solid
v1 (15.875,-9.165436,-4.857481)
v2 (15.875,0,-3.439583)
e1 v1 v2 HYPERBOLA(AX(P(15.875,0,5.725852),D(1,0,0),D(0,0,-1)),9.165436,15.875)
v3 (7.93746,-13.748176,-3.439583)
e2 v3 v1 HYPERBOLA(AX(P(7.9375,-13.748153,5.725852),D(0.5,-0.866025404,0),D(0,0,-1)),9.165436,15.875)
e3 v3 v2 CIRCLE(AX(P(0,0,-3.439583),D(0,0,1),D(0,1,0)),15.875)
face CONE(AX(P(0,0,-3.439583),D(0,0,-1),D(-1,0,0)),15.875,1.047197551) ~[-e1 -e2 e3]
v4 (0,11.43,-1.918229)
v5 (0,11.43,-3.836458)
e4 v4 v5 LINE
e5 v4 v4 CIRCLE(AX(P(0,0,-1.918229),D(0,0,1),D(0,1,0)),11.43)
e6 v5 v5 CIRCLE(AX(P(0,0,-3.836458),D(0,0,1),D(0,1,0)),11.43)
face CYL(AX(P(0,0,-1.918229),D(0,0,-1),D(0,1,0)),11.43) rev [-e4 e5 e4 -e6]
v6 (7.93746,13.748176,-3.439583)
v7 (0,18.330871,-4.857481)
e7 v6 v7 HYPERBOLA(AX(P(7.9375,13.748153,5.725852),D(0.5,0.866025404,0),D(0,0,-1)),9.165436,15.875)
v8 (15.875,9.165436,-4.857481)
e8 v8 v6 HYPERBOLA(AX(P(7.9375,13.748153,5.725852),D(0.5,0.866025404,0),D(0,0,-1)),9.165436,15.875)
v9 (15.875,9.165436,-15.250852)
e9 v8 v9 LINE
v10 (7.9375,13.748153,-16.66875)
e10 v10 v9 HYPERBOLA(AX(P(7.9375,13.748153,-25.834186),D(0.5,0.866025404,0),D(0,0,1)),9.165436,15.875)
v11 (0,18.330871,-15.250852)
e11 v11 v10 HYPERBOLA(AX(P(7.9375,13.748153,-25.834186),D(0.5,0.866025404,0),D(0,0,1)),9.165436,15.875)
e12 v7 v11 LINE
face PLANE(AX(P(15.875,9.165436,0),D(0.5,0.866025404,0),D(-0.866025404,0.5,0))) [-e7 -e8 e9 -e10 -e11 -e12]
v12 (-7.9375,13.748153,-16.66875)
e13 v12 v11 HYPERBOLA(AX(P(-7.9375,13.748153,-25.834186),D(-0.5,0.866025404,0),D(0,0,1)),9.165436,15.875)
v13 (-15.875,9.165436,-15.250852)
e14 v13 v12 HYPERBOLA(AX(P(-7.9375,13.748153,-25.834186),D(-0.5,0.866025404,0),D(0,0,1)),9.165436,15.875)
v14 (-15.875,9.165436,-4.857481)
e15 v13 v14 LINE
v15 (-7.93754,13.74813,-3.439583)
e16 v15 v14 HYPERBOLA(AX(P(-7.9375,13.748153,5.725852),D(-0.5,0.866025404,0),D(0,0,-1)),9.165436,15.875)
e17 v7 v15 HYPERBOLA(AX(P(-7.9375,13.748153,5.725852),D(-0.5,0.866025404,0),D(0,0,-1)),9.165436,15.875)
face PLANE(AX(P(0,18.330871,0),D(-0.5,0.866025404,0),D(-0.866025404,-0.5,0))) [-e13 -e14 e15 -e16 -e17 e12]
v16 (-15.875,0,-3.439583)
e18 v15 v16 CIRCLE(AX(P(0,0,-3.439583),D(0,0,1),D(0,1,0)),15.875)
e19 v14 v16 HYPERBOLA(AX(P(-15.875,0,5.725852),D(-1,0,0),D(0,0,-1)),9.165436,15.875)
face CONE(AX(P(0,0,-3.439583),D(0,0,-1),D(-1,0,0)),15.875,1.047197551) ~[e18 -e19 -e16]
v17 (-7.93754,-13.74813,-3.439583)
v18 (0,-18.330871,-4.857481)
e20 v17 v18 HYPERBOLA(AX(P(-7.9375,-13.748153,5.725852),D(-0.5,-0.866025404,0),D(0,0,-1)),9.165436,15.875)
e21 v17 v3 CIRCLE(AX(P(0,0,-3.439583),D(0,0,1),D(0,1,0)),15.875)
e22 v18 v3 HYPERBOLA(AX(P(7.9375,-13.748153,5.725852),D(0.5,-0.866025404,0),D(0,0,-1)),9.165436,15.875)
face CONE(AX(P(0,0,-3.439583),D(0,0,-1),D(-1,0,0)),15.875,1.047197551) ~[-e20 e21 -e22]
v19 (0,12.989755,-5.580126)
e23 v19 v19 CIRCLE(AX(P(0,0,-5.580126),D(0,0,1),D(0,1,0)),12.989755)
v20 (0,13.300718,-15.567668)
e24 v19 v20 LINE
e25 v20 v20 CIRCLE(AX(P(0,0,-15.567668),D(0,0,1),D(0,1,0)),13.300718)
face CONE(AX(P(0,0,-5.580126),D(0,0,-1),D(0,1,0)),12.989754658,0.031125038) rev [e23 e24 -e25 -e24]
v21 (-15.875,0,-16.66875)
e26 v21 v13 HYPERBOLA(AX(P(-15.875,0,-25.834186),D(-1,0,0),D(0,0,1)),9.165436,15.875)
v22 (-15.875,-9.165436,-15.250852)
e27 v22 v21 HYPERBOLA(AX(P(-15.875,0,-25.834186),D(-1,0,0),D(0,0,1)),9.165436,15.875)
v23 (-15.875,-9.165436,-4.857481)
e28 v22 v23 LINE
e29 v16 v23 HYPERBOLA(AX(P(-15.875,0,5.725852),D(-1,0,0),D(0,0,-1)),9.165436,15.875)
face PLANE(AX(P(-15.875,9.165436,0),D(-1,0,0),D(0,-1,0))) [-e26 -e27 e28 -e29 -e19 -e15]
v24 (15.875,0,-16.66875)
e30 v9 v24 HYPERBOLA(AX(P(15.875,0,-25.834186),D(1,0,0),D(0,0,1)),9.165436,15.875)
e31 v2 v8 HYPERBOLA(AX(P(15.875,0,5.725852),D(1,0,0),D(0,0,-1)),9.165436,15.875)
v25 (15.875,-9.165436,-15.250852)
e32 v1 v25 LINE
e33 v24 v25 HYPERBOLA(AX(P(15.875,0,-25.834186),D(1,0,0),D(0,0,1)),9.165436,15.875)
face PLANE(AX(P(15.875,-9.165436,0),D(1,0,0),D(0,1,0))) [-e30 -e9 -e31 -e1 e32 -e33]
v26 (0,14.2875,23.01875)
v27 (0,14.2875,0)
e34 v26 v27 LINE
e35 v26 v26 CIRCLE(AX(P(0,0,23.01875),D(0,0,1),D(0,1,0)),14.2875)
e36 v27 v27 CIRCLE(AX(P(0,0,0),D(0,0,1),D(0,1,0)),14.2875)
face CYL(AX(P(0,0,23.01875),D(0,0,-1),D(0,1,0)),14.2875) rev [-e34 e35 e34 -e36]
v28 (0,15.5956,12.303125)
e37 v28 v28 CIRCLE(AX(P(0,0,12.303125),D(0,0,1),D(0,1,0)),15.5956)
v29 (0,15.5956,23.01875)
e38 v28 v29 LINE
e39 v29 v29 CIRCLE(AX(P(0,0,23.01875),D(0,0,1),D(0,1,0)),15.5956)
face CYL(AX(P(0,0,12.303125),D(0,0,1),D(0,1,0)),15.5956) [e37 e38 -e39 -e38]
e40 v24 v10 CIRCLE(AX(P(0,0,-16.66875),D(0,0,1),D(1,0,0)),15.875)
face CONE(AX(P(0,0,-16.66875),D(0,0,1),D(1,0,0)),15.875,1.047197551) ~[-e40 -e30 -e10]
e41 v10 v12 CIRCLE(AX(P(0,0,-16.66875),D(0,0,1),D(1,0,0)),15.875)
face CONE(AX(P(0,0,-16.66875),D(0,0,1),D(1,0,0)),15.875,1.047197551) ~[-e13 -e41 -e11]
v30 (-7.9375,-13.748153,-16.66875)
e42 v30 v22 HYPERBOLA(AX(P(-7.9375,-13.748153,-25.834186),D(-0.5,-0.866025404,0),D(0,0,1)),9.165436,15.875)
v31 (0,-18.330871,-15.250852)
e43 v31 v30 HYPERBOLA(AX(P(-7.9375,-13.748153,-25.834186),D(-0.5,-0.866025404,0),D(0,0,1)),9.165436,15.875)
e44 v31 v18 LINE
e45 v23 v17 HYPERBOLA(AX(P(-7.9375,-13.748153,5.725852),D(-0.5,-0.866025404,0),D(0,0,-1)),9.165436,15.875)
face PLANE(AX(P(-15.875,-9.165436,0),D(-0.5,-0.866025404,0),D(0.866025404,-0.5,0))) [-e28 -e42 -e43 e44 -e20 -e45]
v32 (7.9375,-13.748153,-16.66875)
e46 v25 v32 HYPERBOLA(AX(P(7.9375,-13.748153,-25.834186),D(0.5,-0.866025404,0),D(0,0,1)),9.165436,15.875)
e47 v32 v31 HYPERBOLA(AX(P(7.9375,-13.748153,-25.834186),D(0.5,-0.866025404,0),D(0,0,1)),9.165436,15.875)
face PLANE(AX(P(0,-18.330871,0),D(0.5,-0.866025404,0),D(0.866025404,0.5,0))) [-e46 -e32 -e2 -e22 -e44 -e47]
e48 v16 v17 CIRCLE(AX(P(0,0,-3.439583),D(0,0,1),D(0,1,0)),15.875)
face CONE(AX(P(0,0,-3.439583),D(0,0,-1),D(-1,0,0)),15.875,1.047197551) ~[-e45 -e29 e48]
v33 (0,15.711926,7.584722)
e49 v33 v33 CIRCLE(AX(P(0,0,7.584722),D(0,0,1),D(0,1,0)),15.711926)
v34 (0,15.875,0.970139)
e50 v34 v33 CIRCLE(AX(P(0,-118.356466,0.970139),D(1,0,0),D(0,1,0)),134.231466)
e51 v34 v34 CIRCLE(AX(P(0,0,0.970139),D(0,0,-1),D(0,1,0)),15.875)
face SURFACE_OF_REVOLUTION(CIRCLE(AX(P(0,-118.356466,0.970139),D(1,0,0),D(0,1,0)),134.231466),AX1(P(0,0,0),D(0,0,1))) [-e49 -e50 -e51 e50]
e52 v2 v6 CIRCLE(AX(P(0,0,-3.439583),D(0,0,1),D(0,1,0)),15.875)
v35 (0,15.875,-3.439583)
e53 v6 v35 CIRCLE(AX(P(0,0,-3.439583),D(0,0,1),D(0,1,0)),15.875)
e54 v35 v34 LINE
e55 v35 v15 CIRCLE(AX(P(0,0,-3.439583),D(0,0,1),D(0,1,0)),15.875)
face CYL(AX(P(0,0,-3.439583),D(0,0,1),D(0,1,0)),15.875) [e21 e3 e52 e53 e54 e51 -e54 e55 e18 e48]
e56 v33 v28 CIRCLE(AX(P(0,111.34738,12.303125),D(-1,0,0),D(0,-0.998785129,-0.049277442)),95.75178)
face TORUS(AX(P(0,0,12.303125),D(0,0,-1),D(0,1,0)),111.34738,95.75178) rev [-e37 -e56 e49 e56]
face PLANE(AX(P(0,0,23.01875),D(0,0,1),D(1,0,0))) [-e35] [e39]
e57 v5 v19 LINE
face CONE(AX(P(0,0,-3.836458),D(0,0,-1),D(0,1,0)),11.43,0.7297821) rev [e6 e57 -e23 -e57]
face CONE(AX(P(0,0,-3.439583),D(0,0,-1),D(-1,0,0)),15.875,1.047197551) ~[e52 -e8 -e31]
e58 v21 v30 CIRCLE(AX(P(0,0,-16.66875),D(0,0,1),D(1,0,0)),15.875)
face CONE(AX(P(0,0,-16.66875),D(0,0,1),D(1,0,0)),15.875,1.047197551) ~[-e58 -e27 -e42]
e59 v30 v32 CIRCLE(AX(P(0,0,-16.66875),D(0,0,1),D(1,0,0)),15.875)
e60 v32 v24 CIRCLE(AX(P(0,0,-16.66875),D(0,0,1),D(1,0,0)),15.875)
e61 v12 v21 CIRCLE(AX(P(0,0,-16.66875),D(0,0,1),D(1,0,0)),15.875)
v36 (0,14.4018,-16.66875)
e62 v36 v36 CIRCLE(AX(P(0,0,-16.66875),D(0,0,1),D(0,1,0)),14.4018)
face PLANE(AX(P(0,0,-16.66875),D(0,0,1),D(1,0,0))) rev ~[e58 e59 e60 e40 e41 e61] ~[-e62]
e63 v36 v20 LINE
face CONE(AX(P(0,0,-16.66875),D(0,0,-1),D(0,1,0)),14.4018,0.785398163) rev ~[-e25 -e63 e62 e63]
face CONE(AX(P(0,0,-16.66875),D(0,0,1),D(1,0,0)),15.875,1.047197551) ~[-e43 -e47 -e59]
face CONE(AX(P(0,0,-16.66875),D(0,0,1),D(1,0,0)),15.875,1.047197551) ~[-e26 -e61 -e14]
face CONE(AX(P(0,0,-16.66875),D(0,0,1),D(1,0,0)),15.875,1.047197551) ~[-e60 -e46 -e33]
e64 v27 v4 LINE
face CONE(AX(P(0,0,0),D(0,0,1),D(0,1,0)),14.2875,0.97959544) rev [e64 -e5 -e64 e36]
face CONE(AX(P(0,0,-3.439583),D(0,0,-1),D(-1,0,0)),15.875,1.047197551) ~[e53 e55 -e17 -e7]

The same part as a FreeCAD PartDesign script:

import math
import FreeCAD as App
import Part
import Sketcher
from FreeCAD import Vector
Q = App.Units.Quantity


def edges_at(feature, points):
    """Names of the edges that pass closest to the given points."""
    edges = feature.Shape.Edges
    near = lambda p: min(range(len(edges)), key=lambda i: edges[i].distToShape(Part.Vertex(*p))[0])
    return sorted({f"Edge{near(p) + 1}" for p in points})

doc = App.newDocument("Part")
body = doc.addObject("PartDesign::Body", "Body")

sketch1 = body.newObject("Sketcher::SketchObject", "Sketch")
sketch1.AttachmentSupport = (doc.getObject("XY_Plane"), [""])
sketch1.MapMode = "FlatFace"
sketch1.addGeometry([
    Part.LineSegment(Vector(0, 18, 0), Vector(-16, 9, 0)),
    Part.LineSegment(Vector(-16, 9, 0), Vector(-16, -9, 0)),
    Part.LineSegment(Vector(-16, -9, 0), Vector(0, -18, 0)),
    Part.LineSegment(Vector(0, -18, 0), Vector(16, -9, 0)),
    Part.LineSegment(Vector(16, -9, 0), Vector(16, 9, 0)),
    Part.LineSegment(Vector(16, 9, 0), Vector(0, 18, 0)),
], False)
sketch1.addConstraint([
    Sketcher.Constraint("Coincident", 0, 2, 1, 1),
    Sketcher.Constraint("Coincident", 1, 2, 2, 1),
    Sketcher.Constraint("Coincident", 2, 2, 3, 1),
    Sketcher.Constraint("Coincident", 3, 2, 4, 1),
    Sketcher.Constraint("Coincident", 4, 2, 5, 1),
    Sketcher.Constraint("Coincident", 5, 2, 0, 1),
    Sketcher.Constraint("Vertical", 1),
    Sketcher.Constraint("Vertical", 4),
    Sketcher.Constraint("Symmetric", 0, 2, 3, 2, -1, 1),
    Sketcher.Constraint("Symmetric", 2, 2, 5, 2, -1, 1),
    Sketcher.Constraint("PointOnObject", 2, 2, -2),
    Sketcher.Constraint("Parallel", 2, 5),
    Sketcher.Constraint("Horizontal", 1, 2, 3, 2),
    Sketcher.Constraint("Angle", 0, Q("-150 deg")),
    Sketcher.Constraint("DistanceX", 1, 2, 3, 2, Q("1.25 in")),
    Sketcher.Constraint("DistanceY", 1, 2, 1, 1, Q("18.330871 mm")),
])
pad1 = body.newObject("PartDesign::Pad", "Pad")
pad1.Profile = sketch1
pad1.Type = "TwoLengths"
pad1.Length = Q("0.90625 in")
pad1.Length2 = Q("0.65625 in")

sketch2 = body.newObject("Sketcher::SketchObject", "Sketch001")
sketch2.AttachmentSupport = (doc.getObject("YZ_Plane"), [""])
sketch2.MapMode = "FlatFace"
sketch2.addGeometry([
    Part.LineSegment(Vector(14.3, 23, 0), Vector(0, 23, 0)),
    Part.LineSegment(Vector(0, 23, 0), Vector(0, -16.7, 0)),
    Part.LineSegment(Vector(0, -16.7, 0), Vector(13.3, -16.7, 0)),
    Part.LineSegment(Vector(13.3, -16.7, 0), Vector(13, -5.6, 0)),
    Part.LineSegment(Vector(13, -5.6, 0), Vector(11.4, -3.8, 0)),
    Part.LineSegment(Vector(11.4, -3.8, 0), Vector(11.4, -1.9, 0)),
    Part.LineSegment(Vector(11.4, -1.9, 0), Vector(14.3, 0, 0)),
    Part.LineSegment(Vector(14.3, 0, 0), Vector(14.3, 23, 0)),
], False)
sketch2.addConstraint([
    Sketcher.Constraint("Coincident", 0, 2, 1, 1),
    Sketcher.Constraint("Coincident", 1, 2, 2, 1),
    Sketcher.Constraint("Coincident", 2, 2, 3, 1),
    Sketcher.Constraint("Coincident", 3, 2, 4, 1),
    Sketcher.Constraint("Coincident", 4, 2, 5, 1),
    Sketcher.Constraint("Coincident", 5, 2, 6, 1),
    Sketcher.Constraint("Coincident", 6, 2, 7, 1),
    Sketcher.Constraint("Coincident", 7, 2, 0, 1),
    Sketcher.Constraint("Horizontal", 0),
    Sketcher.Constraint("Vertical", 1),
    Sketcher.Constraint("Horizontal", 2),
    Sketcher.Constraint("Vertical", 5),
    Sketcher.Constraint("Vertical", 7),
    Sketcher.Constraint("PointOnObject", 0, 2, -2),
    Sketcher.Constraint("PointOnObject", 6, 2, -1),
    Sketcher.Constraint("DistanceX", 0, 2, 0, 1, Q("0.5625 in")),
    Sketcher.Constraint("DistanceX", 2, 1, 2, 2, Q("0.525 in")),
    Sketcher.Constraint("DistanceY", 1, 2, 1, 1, Q("1.5625 in")),
    Sketcher.Constraint("DistanceY", 7, 1, 7, 2, Q("0.90625 in")),
    Sketcher.Constraint("DistanceX", -1, 1, 4, 2, Q("0.45 in")),
    Sketcher.Constraint("DistanceY", 5, 1, 5, 2, Q("1.918229 mm")),
    Sketcher.Constraint("Distance", 4, Q("2.33949 mm")),
    Sketcher.Constraint("DistanceY", 4, 2, -1, 1, Q("3.836458 mm")),
    Sketcher.Constraint("Distance", 3, Q("11.093997 mm")),
])
groove = body.newObject("PartDesign::Groove", "Groove")
groove.Profile = sketch2
groove.ReferenceAxis = (sketch2, ["V_Axis"])
groove.Angle = 360

sketch3 = body.newObject("Sketcher::SketchObject", "Sketch002")
sketch3.AttachmentSupport = (doc.getObject("YZ_Plane"), [""])
sketch3.MapMode = "FlatFace"
sketch3.addGeometry([
    Part.LineSegment(Vector(18.3, 23, 0), Vector(15.6, 23, 0)),
    Part.LineSegment(Vector(15.6, 23, 0), Vector(15.6, 12.3, 0)),
    Part.ArcOfCircle(Part.Circle(Vector(111.3, 12.3, 0), Vector(0, 0, 1), 95.8), math.radians(180), math.radians(182.82)),
    Part.ArcOfCircle(Part.Circle(Vector(-118.4, 1, 0), Vector(0, 0, 1), 134.2), math.radians(0), math.radians(2.82)),
    Part.LineSegment(Vector(15.9, 1, 0), Vector(15.9, -3.4, 0)),
    Part.LineSegment(Vector(15.9, -3.4, 0), Vector(18.3, -3.4, 0)),
    Part.LineSegment(Vector(18.3, -3.4, 0), Vector(18.3, 23, 0)),
], False)
sketch3.addConstraint([
    Sketcher.Constraint("Coincident", 0, 2, 1, 1),
    Sketcher.Constraint("Tangent", 1, 2, 2, 1),
    Sketcher.Constraint("Tangent", 2, 2, 3, 2),
    Sketcher.Constraint("Tangent", 3, 1, 4, 1),
    Sketcher.Constraint("Coincident", 4, 2, 5, 1),
    Sketcher.Constraint("Coincident", 5, 2, 6, 1),
    Sketcher.Constraint("Coincident", 6, 2, 0, 1),
    Sketcher.Constraint("Horizontal", 0),
    Sketcher.Constraint("Vertical", 1),
    Sketcher.Constraint("Vertical", 4),
    Sketcher.Constraint("Horizontal", 5),
    Sketcher.Constraint("Vertical", 6),
    Sketcher.Constraint("DistanceY", 1, 2, 1, 1, Q("0.421875 in")),
    Sketcher.Constraint("DistanceY", -1, 1, 2, 3, Q("0.484375 in")),
    Sketcher.Constraint("DistanceX", -1, 1, 0, 2, Q("0.614 in")),
    Sketcher.Constraint("DistanceX", -1, 1, 3, 1, Q("0.625 in")),
    Sketcher.Constraint("Radius", 2, Q("95.75178 mm")),
    Sketcher.Constraint("Radius", 3, Q("134.231466 mm")),
    Sketcher.Constraint("DistanceX", 0, 2, 0, 1, Q("2.735271 mm")),
    Sketcher.Constraint("DistanceY", 4, 2, 4, 1, Q("4.409722 mm")),
])
groove2 = body.newObject("PartDesign::Groove", "Groove001")
groove2.Profile = sketch3
groove2.ReferenceAxis = (sketch3, ["V_Axis"])
groove2.Angle = 360

sketch4 = body.newObject("Sketcher::SketchObject", "Sketch003")
sketch4.AttachmentSupport = (doc.getObject("XY_Plane"), [""])
sketch4.MapMode = "FlatFace"
sketch4.AttachmentOffset = App.Placement(Vector(0, 0, -0.65625 * 25.4), App.Rotation())
sketch4.addGeometry([
    Part.LineSegment(Vector(-3543, 3545, 0), Vector(-3543, -3545, 0)),
    Part.LineSegment(Vector(-3543, -3545, 0), Vector(3543, -3545, 0)),
    Part.LineSegment(Vector(3543, -3545, 0), Vector(3543, 3545, 0)),
    Part.LineSegment(Vector(3543, 3545, 0), Vector(-3543, 3545, 0)),
    Part.Circle(Vector(0, 0, 0), Vector(0, 0, 1), 16),
], False)
sketch4.addConstraint([
    Sketcher.Constraint("Coincident", 0, 2, 1, 1),
    Sketcher.Constraint("Coincident", 1, 2, 2, 1),
    Sketcher.Constraint("Coincident", 2, 2, 3, 1),
    Sketcher.Constraint("Coincident", 3, 2, 0, 1),
    Sketcher.Constraint("Vertical", 0),
    Sketcher.Constraint("Horizontal", 1),
    Sketcher.Constraint("Vertical", 2),
    Sketcher.Constraint("Horizontal", 3),
    Sketcher.Constraint("Coincident", 4, 3, -1, 1),
    Sketcher.Constraint("Symmetric", 0, 2, 2, 2, -1, 1),
    Sketcher.Constraint("Diameter", 4, Q("1.25 in")),
    Sketcher.Constraint("DistanceX", 1, 1, 1, 2, Q("7085.338 mm")),
    Sketcher.Constraint("DistanceY", 0, 2, 0, 1, Q("7090.25 mm")),
])
pocket1 = body.newObject("PartDesign::Pocket", "Pocket")
pocket1.Profile = sketch4
pocket1.Length = Q("80 in")
pocket1.Reversed = True
pocket1.TaperAngle = 60

sketch5 = body.newObject("Sketcher::SketchObject", "Sketch004")
sketch5.AttachmentSupport = (doc.getObject("XY_Plane"), [""])
sketch5.MapMode = "FlatFace"
sketch5.AttachmentOffset = App.Placement(Vector(0, 0, -3.439583), App.Rotation())
sketch5.addGeometry([
    Part.LineSegment(Vector(28, 30, 0), Vector(28, -30, 0)),
    Part.LineSegment(Vector(28, -30, 0), Vector(-28, -30, 0)),
    Part.LineSegment(Vector(-28, -30, 0), Vector(-28, 30, 0)),
    Part.LineSegment(Vector(-28, 30, 0), Vector(28, 30, 0)),
    Part.Circle(Vector(0, 0, 0), Vector(0, 0, 1), 16),
], False)
sketch5.addConstraint([
    Sketcher.Constraint("Coincident", 0, 2, 1, 1),
    Sketcher.Constraint("Coincident", 1, 2, 2, 1),
    Sketcher.Constraint("Coincident", 2, 2, 3, 1),
    Sketcher.Constraint("Coincident", 3, 2, 0, 1),
    Sketcher.Constraint("Vertical", 0),
    Sketcher.Constraint("Horizontal", 1),
    Sketcher.Constraint("Vertical", 2),
    Sketcher.Constraint("Horizontal", 3),
    Sketcher.Constraint("Coincident", 4, 3, -1, 1),
    Sketcher.Constraint("Symmetric", 0, 2, 2, 2, -1, 1),
    Sketcher.Constraint("Diameter", 4, Q("1.25 in")),
    Sketcher.Constraint("DistanceX", 1, 2, 1, 1, Q("55.082 mm")),
    Sketcher.Constraint("DistanceY", 0, 2, 0, 1, Q("59.994 mm")),
])
pocket2 = body.newObject("PartDesign::Pocket", "Pocket001")
pocket2.Profile = sketch5
pocket2.Length = Q("0.1 in")
pocket2.TaperAngle = 60
doc.recompute()

chamfer = body.newObject("PartDesign::Chamfer", "Chamfer")
chamfer.Base = (pocket2, edges_at(pocket2, [(0, -13.335, -16.669)]))
chamfer.ChamferType = "Two distances"
chamfer.Size = Q("0.042 in")
chamfer.Size2 = 1.101616

doc.recompute()
